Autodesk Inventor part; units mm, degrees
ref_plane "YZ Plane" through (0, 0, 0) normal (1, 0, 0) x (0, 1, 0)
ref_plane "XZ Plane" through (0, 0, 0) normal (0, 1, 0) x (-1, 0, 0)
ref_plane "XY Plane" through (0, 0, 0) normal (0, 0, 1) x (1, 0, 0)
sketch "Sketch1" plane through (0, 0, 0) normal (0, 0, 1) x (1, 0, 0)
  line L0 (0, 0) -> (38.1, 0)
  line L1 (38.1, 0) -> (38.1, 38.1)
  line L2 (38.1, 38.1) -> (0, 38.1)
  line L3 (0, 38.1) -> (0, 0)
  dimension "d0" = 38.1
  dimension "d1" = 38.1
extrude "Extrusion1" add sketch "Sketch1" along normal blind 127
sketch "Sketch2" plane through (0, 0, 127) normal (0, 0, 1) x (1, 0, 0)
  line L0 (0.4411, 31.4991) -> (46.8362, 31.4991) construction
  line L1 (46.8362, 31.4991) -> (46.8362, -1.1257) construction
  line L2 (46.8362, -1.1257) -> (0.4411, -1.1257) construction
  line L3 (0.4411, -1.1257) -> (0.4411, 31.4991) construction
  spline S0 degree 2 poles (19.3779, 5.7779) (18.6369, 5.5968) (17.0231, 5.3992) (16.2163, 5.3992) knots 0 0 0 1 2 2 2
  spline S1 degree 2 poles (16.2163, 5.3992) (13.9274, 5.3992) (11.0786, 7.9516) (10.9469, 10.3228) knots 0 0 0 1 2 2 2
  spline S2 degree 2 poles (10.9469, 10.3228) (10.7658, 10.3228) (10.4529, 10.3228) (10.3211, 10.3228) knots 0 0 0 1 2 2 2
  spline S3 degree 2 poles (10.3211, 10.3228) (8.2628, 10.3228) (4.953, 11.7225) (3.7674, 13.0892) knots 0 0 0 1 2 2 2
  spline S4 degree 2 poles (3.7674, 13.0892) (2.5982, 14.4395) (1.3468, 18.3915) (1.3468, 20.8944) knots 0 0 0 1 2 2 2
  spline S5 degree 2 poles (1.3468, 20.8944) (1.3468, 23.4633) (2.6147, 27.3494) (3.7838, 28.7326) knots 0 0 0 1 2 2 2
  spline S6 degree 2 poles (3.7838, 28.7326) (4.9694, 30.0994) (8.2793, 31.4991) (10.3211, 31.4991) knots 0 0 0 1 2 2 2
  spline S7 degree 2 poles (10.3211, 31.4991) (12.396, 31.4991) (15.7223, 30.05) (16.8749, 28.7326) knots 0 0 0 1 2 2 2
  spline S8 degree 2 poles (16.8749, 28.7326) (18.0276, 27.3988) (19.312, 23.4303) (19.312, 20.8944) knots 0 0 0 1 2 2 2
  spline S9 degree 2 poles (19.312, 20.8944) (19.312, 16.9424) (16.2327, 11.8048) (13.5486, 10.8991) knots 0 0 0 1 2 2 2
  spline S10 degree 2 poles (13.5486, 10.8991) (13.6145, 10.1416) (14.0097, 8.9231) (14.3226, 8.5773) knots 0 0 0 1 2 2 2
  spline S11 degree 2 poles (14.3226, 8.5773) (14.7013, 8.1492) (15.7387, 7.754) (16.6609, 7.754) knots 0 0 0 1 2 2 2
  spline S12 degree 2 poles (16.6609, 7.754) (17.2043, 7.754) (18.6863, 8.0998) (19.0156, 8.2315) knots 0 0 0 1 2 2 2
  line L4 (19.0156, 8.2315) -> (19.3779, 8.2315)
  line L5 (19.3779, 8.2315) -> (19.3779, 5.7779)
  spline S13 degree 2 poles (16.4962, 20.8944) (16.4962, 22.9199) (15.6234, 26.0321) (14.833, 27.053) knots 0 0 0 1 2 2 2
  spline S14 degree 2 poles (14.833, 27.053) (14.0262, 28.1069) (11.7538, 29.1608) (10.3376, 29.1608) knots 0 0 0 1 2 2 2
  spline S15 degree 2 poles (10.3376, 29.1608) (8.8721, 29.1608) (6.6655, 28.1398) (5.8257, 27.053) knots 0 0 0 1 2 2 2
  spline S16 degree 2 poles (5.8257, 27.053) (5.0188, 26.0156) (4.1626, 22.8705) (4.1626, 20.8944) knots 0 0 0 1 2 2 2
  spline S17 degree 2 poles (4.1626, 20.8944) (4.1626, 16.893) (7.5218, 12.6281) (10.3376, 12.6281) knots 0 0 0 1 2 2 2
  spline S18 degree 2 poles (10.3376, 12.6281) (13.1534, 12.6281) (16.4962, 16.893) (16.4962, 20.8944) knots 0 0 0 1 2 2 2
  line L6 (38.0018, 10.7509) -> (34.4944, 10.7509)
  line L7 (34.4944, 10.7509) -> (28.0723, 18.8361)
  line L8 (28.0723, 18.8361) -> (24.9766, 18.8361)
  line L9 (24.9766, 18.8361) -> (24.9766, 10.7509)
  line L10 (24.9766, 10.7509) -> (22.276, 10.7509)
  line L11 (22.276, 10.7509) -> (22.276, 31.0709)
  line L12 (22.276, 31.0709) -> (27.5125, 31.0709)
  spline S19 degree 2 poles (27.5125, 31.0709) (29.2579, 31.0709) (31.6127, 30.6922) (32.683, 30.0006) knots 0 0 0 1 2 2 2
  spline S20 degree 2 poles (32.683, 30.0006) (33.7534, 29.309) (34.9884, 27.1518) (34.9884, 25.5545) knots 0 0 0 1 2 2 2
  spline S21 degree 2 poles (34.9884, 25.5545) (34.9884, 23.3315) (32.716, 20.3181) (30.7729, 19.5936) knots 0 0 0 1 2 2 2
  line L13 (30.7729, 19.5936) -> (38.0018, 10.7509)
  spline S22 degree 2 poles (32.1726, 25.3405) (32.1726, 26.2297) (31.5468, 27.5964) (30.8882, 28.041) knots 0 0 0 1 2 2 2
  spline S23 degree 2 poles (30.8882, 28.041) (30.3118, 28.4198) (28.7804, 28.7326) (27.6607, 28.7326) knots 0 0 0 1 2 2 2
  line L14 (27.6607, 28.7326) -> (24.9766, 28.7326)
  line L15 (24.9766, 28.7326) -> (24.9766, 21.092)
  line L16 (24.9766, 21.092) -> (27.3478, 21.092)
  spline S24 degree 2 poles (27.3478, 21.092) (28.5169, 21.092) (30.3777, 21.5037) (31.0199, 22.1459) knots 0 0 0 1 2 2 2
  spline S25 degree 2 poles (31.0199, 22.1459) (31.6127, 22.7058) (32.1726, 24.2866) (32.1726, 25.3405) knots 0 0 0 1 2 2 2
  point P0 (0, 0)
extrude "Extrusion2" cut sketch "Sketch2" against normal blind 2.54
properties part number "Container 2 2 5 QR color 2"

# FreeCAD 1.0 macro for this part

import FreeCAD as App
import Part
import Sketcher
from FreeCAD import Vector
Q = App.Units.Quantity


def add_polygon(sketch, points):
    """Adds a closed chain of lines whose ends are joined by coincident constraints."""
    first, n = sketch.GeometryCount, len(points)
    for a, b in zip(points, points[1:] + points[:1]):
        sketch.addGeometry(Part.LineSegment(App.Vector(*a, 0), App.Vector(*b, 0)), False)
    for i in range(n):
        sketch.addConstraint(Sketcher.Constraint("Coincident", first + i, 2, first + (i + 1) % n, 1))

doc = App.newDocument("Part")
body = doc.addObject("PartDesign::Body", "Body")

# Sketch on XY plane
sketch1 = body.newObject("Sketcher::SketchObject", "Sketch")
sketch1.AttachmentSupport = (doc.getObject("XY_Plane"), [""])
sketch1.MapMode = "FlatFace"
add_polygon(sketch1, [(0, 38), (0, 0), (38, 0), (38, 38)])  # lines 0-3
sketch1.addConstraint([
    Sketcher.Constraint("Vertical", 0),
    Sketcher.Constraint("Horizontal", 1),
    Sketcher.Constraint("Vertical", 2),
    Sketcher.Constraint("Horizontal", 3),
    Sketcher.Constraint("Coincident", 0, 2, -1, 1),
    Sketcher.Constraint("Equal", 3, 0),
    Sketcher.Constraint("DistanceX", 1, 1, 1, 2, Q("1.5 in")),
])
pad1 = body.newObject("PartDesign::Pad", "Pad")
pad1.Profile = sketch1
pad1.Length = Q("5 in")

# Sketch on XY plane
sketch2 = body.newObject("Sketcher::SketchObject", "Sketch001")
sketch2.AttachmentSupport = (doc.getObject("XY_Plane"), [""])
sketch2.MapMode = "FlatFace"
sketch2.AttachmentOffset = App.Placement(Vector(0, 0, 5 * 25.4), App.Rotation())
sketch2.addGeometry([
    Part.BSplineCurve([Vector(19.3779, 5.7779, 0), Vector(18.6369, 5.5968, 0), Vector(17.0231, 5.3992, 0), Vector(16.2163, 5.3992, 0)], [3, 1, 3], [0, 1, 2], False, 2, [1, 1, 1, 1], False),  # 0
    Part.LineSegment(Vector(19.3779, 5.7779, 0), Vector(19.3779, 8.2315, 0)),  # 1
    Part.LineSegment(Vector(19.3779, 8.2315, 0), Vector(19.0156, 8.2315, 0)),  # 2
    Part.BSplineCurve([Vector(16.6609, 7.754, 0), Vector(17.2043, 7.754, 0), Vector(18.6863, 8.0998, 0), Vector(19.0156, 8.2315, 0)], [3, 1, 3], [0, 1, 2], False, 2, [1, 1, 1, 1], False),  # 3
    Part.BSplineCurve([Vector(14.3226, 8.5773, 0), Vector(14.7013, 8.1492, 0), Vector(15.7387, 7.754, 0), Vector(16.6609, 7.754, 0)], [3, 1, 3], [0, 1, 2], False, 2, [1, 1, 1, 1], False),  # 4
    Part.BSplineCurve([Vector(13.5486, 10.8991, 0), Vector(13.6145, 10.1416, 0), Vector(14.0097, 8.9231, 0), Vector(14.3226, 8.5773, 0)], [3, 1, 3], [0, 1, 2], False, 2, [1, 1, 1, 1], False),  # 5
    Part.BSplineCurve([Vector(19.312, 20.8944, 0), Vector(19.312, 16.9424, 0), Vector(16.2327, 11.8048, 0), Vector(13.5486, 10.8991, 0)], [3, 1, 3], [0, 1, 2], False, 2, [1, 1, 1, 1], False),  # 6
    Part.BSplineCurve([Vector(16.8749, 28.7326, 0), Vector(18.0276, 27.3988, 0), Vector(19.312, 23.4303, 0), Vector(19.312, 20.8944, 0)], [3, 1, 3], [0, 1, 2], False, 2, [1, 1, 1, 1], False),  # 7
    Part.BSplineCurve([Vector(10.3211, 31.4991, 0), Vector(12.396, 31.4991, 0), Vector(15.7223, 30.05, 0), Vector(16.8749, 28.7326, 0)], [3, 1, 3], [0, 1, 2], False, 2, [1, 1, 1, 1], False),  # 8
    Part.BSplineCurve([Vector(3.7838, 28.7326, 0), Vector(4.9694, 30.0994, 0), Vector(8.2793, 31.4991, 0), Vector(10.3211, 31.4991, 0)], [3, 1, 3], [0, 1, 2], False, 2, [1, 1, 1, 1], False),  # 9
    Part.BSplineCurve([Vector(1.3468, 20.8944, 0), Vector(1.3468, 23.4633, 0), Vector(2.6147, 27.3494, 0), Vector(3.7838, 28.7326, 0)], [3, 1, 3], [0, 1, 2], False, 2, [1, 1, 1, 1], False),  # 10
    Part.BSplineCurve([Vector(3.7674, 13.0892, 0), Vector(2.5982, 14.4395, 0), Vector(1.3468, 18.3915, 0), Vector(1.3468, 20.8944, 0)], [3, 1, 3], [0, 1, 2], False, 2, [1, 1, 1, 1], False),  # 11
    Part.BSplineCurve([Vector(10.3211, 10.3228, 0), Vector(8.2628, 10.3228, 0), Vector(4.953, 11.7225, 0), Vector(3.7674, 13.0892, 0)], [3, 1, 3], [0, 1, 2], False, 2, [1, 1, 1, 1], False),  # 12
    Part.BSplineCurve([Vector(10.9469, 10.3228, 0), Vector(10.7658, 10.3228, 0), Vector(10.4529, 10.3228, 0), Vector(10.3211, 10.3228, 0)], [3, 1, 3], [0, 1, 2], False, 2, [1, 1, 1, 1], False),  # 13
    Part.BSplineCurve([Vector(16.2163, 5.3992, 0), Vector(13.9274, 5.3992, 0), Vector(11.0786, 7.9516, 0), Vector(10.9469, 10.3228, 0)], [3, 1, 3], [0, 1, 2], False, 2, [1, 1, 1, 1], False),  # 14
    Part.BSplineCurve([Vector(16.4962, 20.8944, 0), Vector(16.4962, 22.9199, 0), Vector(15.6234, 26.0321, 0), Vector(14.833, 27.053, 0)], [3, 1, 3], [0, 1, 2], False, 2, [1, 1, 1, 1], False),  # 15
    Part.BSplineCurve([Vector(10.3376, 12.6281, 0), Vector(13.1534, 12.6281, 0), Vector(16.4962, 16.893, 0), Vector(16.4962, 20.8944, 0)], [3, 1, 3], [0, 1, 2], False, 2, [1, 1, 1, 1], False),  # 16
    Part.BSplineCurve([Vector(4.1626, 20.8944, 0), Vector(4.1626, 16.893, 0), Vector(7.5218, 12.6281, 0), Vector(10.3376, 12.6281, 0)], [3, 1, 3], [0, 1, 2], False, 2, [1, 1, 1, 1], False),  # 17
    Part.BSplineCurve([Vector(5.8257, 27.053, 0), Vector(5.0188, 26.0156, 0), Vector(4.1626, 22.8705, 0), Vector(4.1626, 20.8944, 0)], [3, 1, 3], [0, 1, 2], False, 2, [1, 1, 1, 1], False),  # 18
    Part.BSplineCurve([Vector(10.3376, 29.1608, 0), Vector(8.8721, 29.1608, 0), Vector(6.6655, 28.1398, 0), Vector(5.8257, 27.053, 0)], [3, 1, 3], [0, 1, 2], False, 2, [1, 1, 1, 1], False),  # 19
    Part.BSplineCurve([Vector(14.833, 27.053, 0), Vector(14.0262, 28.1069, 0), Vector(11.7538, 29.1608, 0), Vector(10.3376, 29.1608, 0)], [3, 1, 3], [0, 1, 2], False, 2, [1, 1, 1, 1], False),  # 20
    Part.LineSegment(Vector(34.4944, 10.7509, 0), Vector(38.0018, 10.7509, 0)),  # 21
    Part.LineSegment(Vector(38.0018, 10.7509, 0), Vector(30.7729, 19.5936, 0)),  # 22
    Part.BSplineCurve([Vector(34.9884, 25.5545, 0), Vector(34.9884, 23.3315, 0), Vector(32.716, 20.3181, 0), Vector(30.7729, 19.5936, 0)], [3, 1, 3], [0, 1, 2], False, 2, [1, 1, 1, 1], False),  # 23
    Part.BSplineCurve([Vector(32.683, 30.0006, 0), Vector(33.7534, 29.309, 0), Vector(34.9884, 27.1518, 0), Vector(34.9884, 25.5545, 0)], [3, 1, 3], [0, 1, 2], False, 2, [1, 1, 1, 1], False),  # 24
    Part.BSplineCurve([Vector(27.5125, 31.0709, 0), Vector(29.2579, 31.0709, 0), Vector(31.6127, 30.6922, 0), Vector(32.683, 30.0006, 0)], [3, 1, 3], [0, 1, 2], False, 2, [1, 1, 1, 1], False),  # 25
    Part.LineSegment(Vector(27.5125, 31.0709, 0), Vector(22.276, 31.0709, 0)),  # 26
    Part.LineSegment(Vector(22.276, 31.0709, 0), Vector(22.276, 10.7509, 0)),  # 27
    Part.LineSegment(Vector(22.276, 10.7509, 0), Vector(24.9766, 10.7509, 0)),  # 28
    Part.LineSegment(Vector(24.9766, 10.7509, 0), Vector(24.9766, 18.8361, 0)),  # 29
    Part.LineSegment(Vector(24.9766, 18.8361, 0), Vector(28.0723, 18.8361, 0)),  # 30
    Part.LineSegment(Vector(28.0723, 18.8361, 0), Vector(34.4944, 10.7509, 0)),  # 31
    Part.BSplineCurve([Vector(32.1726, 25.3405, 0), Vector(32.1726, 26.2297, 0), Vector(31.5468, 27.5964, 0), Vector(30.8882, 28.041, 0)], [3, 1, 3], [0, 1, 2], False, 2, [1, 1, 1, 1], False),  # 32
    Part.BSplineCurve([Vector(31.0199, 22.1459, 0), Vector(31.6127, 22.7058, 0), Vector(32.1726, 24.2866, 0), Vector(32.1726, 25.3405, 0)], [3, 1, 3], [0, 1, 2], False, 2, [1, 1, 1, 1], False),  # 33
    Part.BSplineCurve([Vector(27.3478, 21.092, 0), Vector(28.5169, 21.092, 0), Vector(30.3777, 21.5037, 0), Vector(31.0199, 22.1459, 0)], [3, 1, 3], [0, 1, 2], False, 2, [1, 1, 1, 1], False),  # 34
    Part.LineSegment(Vector(27.3478, 21.092, 0), Vector(24.9766, 21.092, 0)),  # 35
    Part.LineSegment(Vector(24.9766, 21.092, 0), Vector(24.9766, 28.7326, 0)),  # 36
    Part.LineSegment(Vector(24.9766, 28.7326, 0), Vector(27.6607, 28.7326, 0)),  # 37
    Part.BSplineCurve([Vector(30.8882, 28.041, 0), Vector(30.3118, 28.4198, 0), Vector(28.7804, 28.7326, 0), Vector(27.6607, 28.7326, 0)], [3, 1, 3], [0, 1, 2], False, 2, [1, 1, 1, 1], False),  # 38
], False)
sketch2.addConstraint([
    Sketcher.Constraint("Block", 0),
    Sketcher.Constraint("Block", 3),
    Sketcher.Constraint("Block", 4),
    Sketcher.Constraint("Block", 5),
    Sketcher.Constraint("Block", 6),
    Sketcher.Constraint("Block", 7),
    Sketcher.Constraint("Block", 8),
    Sketcher.Constraint("Block", 9),
    Sketcher.Constraint("Block", 10),
    Sketcher.Constraint("Block", 11),
    Sketcher.Constraint("Block", 12),
    Sketcher.Constraint("Block", 13),
    Sketcher.Constraint("Block", 14),
    Sketcher.Constraint("Block", 15),
    Sketcher.Constraint("Block", 16),
    Sketcher.Constraint("Block", 17),
    Sketcher.Constraint("Block", 18),
    Sketcher.Constraint("Block", 19),
    Sketcher.Constraint("Block", 20),
    Sketcher.Constraint("Block", 23),
    Sketcher.Constraint("Block", 24),
    Sketcher.Constraint("Block", 25),
    Sketcher.Constraint("Block", 32),
    Sketcher.Constraint("Block", 33),
    Sketcher.Constraint("Block", 34),
    Sketcher.Constraint("Block", 38),
    Sketcher.Constraint("Coincident", 0, 1, 1, 1),
    Sketcher.Constraint("Coincident", 1, 2, 2, 1),
    Sketcher.Constraint("Coincident", 2, 2, 3, 2),
    Sketcher.Constraint("Coincident", 21, 2, 22, 1),
    Sketcher.Constraint("Coincident", 22, 2, 23, 2),
    Sketcher.Constraint("Coincident", 25, 1, 26, 1),
    Sketcher.Constraint("Coincident", 26, 2, 27, 1),
    Sketcher.Constraint("Coincident", 27, 2, 28, 1),
    Sketcher.Constraint("Coincident", 28, 2, 29, 1),
    Sketcher.Constraint("Coincident", 29, 2, 30, 1),
    Sketcher.Constraint("Coincident", 30, 2, 31, 1),
    Sketcher.Constraint("Coincident", 31, 2, 21, 1),
    Sketcher.Constraint("Coincident", 34, 1, 35, 1),
    Sketcher.Constraint("Coincident", 35, 2, 36, 1),
    Sketcher.Constraint("Coincident", 36, 2, 37, 1),
    Sketcher.Constraint("Coincident", 37, 2, 38, 2),
    Sketcher.Constraint("Vertical", 1),
    Sketcher.Constraint("Horizontal", 2),
    Sketcher.Constraint("Horizontal", 21),
    Sketcher.Constraint("Horizontal", 26),
    Sketcher.Constraint("Vertical", 27),
    Sketcher.Constraint("Horizontal", 28),
    Sketcher.Constraint("Vertical", 29),
    Sketcher.Constraint("Horizontal", 30),
    Sketcher.Constraint("Horizontal", 35),
    Sketcher.Constraint("Vertical", 36),
    Sketcher.Constraint("Horizontal", 37),
    Sketcher.Constraint("Horizontal", 21, 2, 27, 2),
    Sketcher.Constraint("Vertical", 29, 2, 35, 2),
    Sketcher.Constraint("DistanceY", 27, 2, 27, 1, Q("0.8 in")),
    Sketcher.Constraint("Angle", 31, Q("-51.5398 deg")),
    Sketcher.Constraint("DistanceX", -1, 1, 26, 2, Q("0.877 in")),
    Sketcher.Constraint("Distance", 31, Q("0.4065 in")),
    Sketcher.Constraint("DistanceX", 21, 1, 21, 2, 3.5074),
    Sketcher.Constraint("DistanceX", 28, 1, 28, 2, 2.7006),
    Sketcher.Constraint("DistanceX", 30, 1, 30, 2, 3.0957),
])
pocket1 = body.newObject("PartDesign::Pocket", "Pocket")
pocket1.Profile = sketch2
pocket1.Length = Q("0.1 in")

doc.recompute()
